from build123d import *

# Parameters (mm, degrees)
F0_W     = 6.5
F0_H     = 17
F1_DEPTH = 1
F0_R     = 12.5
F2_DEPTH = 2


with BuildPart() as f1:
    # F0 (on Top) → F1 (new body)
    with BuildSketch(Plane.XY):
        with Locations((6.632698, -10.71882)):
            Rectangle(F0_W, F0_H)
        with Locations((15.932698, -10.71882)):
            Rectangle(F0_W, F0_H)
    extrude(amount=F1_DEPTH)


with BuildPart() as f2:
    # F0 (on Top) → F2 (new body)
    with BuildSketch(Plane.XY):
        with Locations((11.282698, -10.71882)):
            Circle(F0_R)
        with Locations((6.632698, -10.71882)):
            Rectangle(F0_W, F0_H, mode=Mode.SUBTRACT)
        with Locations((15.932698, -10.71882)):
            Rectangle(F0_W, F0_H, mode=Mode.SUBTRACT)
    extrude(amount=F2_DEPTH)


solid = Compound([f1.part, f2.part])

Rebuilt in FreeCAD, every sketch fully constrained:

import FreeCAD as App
import Part
import Sketcher

V = App.Vector
Q = App.Units.Quantity

doc = App.newDocument("Part")
body = doc.addObject("PartDesign::Body", "Body")
body.AllowCompound = True

# Sketch on XY plane
sketch1 = body.newObject("Sketcher::SketchObject", "Sketch")
sketch1.AttachmentSupport = (doc.getObject("XY_Plane"), [""])
sketch1.MapMode = "FlatFace"
sketch1.addGeometry([
    Part.LineSegment(V(3, -2, 0), V(3, -19, 0)),  # 0
    Part.LineSegment(V(3, -19, 0), V(10, -19, 0)),  # 1
    Part.LineSegment(V(10, -19, 0), V(10, -2, 0)),  # 2
    Part.LineSegment(V(10, -2, 0), V(3, -2, 0)),  # 3
    Part.LineSegment(V(13, -2, 0), V(13, -19, 0)),  # 4
    Part.LineSegment(V(13, -19, 0), V(19, -19, 0)),  # 5
    Part.LineSegment(V(19, -19, 0), V(19, -2, 0)),  # 6
    Part.LineSegment(V(19, -2, 0), V(13, -2, 0)),  # 7
], False)
sketch1.addConstraint([
    Sketcher.Constraint("Coincident", 0, 2, 1, 1),
    Sketcher.Constraint("Coincident", 1, 2, 2, 1),
    Sketcher.Constraint("Coincident", 2, 2, 3, 1),
    Sketcher.Constraint("Coincident", 3, 2, 0, 1),
    Sketcher.Constraint("Coincident", 4, 2, 5, 1),
    Sketcher.Constraint("Coincident", 5, 2, 6, 1),
    Sketcher.Constraint("Coincident", 6, 2, 7, 1),
    Sketcher.Constraint("Coincident", 7, 2, 4, 1),
    Sketcher.Constraint("Vertical", 0),
    Sketcher.Constraint("Horizontal", 1),
    Sketcher.Constraint("Vertical", 2),
    Sketcher.Constraint("Horizontal", 3),
    Sketcher.Constraint("Vertical", 4),
    Sketcher.Constraint("Horizontal", 5),
    Sketcher.Constraint("Vertical", 6),
    Sketcher.Constraint("Horizontal", 7),
    Sketcher.Constraint("Horizontal", 1, 2, 4, 2),
    Sketcher.Constraint("Horizontal", 3, 2, 6, 2),
    Sketcher.Constraint("Equal", 3, 5),
    Sketcher.Constraint("DistanceY", 0, 2, 0, 1, Q("17 mm")),
    Sketcher.Constraint("DistanceX", 1, 1, 1, 2, Q("6.5 mm")),
    Sketcher.Constraint("DistanceX", 1, 2, 4, 2, Q("2.8 mm")),
    Sketcher.Constraint("DistanceX", -1, 1, 0, 2, Q("3.382698 mm")),
    Sketcher.Constraint("DistanceY", 0, 2, -1, 1, Q("19.21882 mm")),
])
pad1 = body.newObject("PartDesign::Pad", "Pad")
pad1.Profile = sketch1
pad1.Length = 1
body2 = doc.addObject("PartDesign::Body", "Body001")

# Sketch on XY plane
sketch2 = body2.newObject("Sketcher::SketchObject", "Sketch001")
sketch2.AttachmentSupport = (doc.getObject("XY_Plane001"), [""])
sketch2.MapMode = "FlatFace"
sketch2.addGeometry([
    Part.Circle(V(11, -11, 0), V(0, 0, 1), 12),  # 0
    Part.LineSegment(V(10, -19, 0), V(3, -19, 0)),  # 1
    Part.LineSegment(V(3, -19, 0), V(3, -2, 0)),  # 2
    Part.LineSegment(V(3, -2, 0), V(10, -2, 0)),  # 3
    Part.LineSegment(V(10, -2, 0), V(10, -19, 0)),  # 4
    Part.LineSegment(V(19, -19, 0), V(13, -19, 0)),  # 5
    Part.LineSegment(V(13, -19, 0), V(13, -2, 0)),  # 6
    Part.LineSegment(V(13, -2, 0), V(19, -2, 0)),  # 7
    Part.LineSegment(V(19, -2, 0), V(19, -19, 0)),  # 8
], False)
sketch2.addConstraint([
    Sketcher.Constraint("Coincident", 1, 2, 2, 1),
    Sketcher.Constraint("Coincident", 2, 2, 3, 1),
    Sketcher.Constraint("Coincident", 3, 2, 4, 1),
    Sketcher.Constraint("Coincident", 4, 2, 1, 1),
    Sketcher.Constraint("Coincident", 5, 2, 6, 1),
    Sketcher.Constraint("Coincident", 6, 2, 7, 1),
    Sketcher.Constraint("Coincident", 7, 2, 8, 1),
    Sketcher.Constraint("Coincident", 8, 2, 5, 1),
    Sketcher.Constraint("Horizontal", 1),
    Sketcher.Constraint("Vertical", 2),
    Sketcher.Constraint("Horizontal", 3),
    Sketcher.Constraint("Vertical", 4),
    Sketcher.Constraint("Horizontal", 5),
    Sketcher.Constraint("Vertical", 6),
    Sketcher.Constraint("Horizontal", 7),
    Sketcher.Constraint("Vertical", 8),
    Sketcher.Constraint("Horizontal", 4, 2, 5, 2),
    Sketcher.Constraint("Horizontal", 3, 2, 6, 2),
    Sketcher.Constraint("Equal", 3, 5),
    Sketcher.Constraint("Diameter", 0, Q("25 mm")),
    Sketcher.Constraint("DistanceY", 2, 1, 2, 2, Q("17 mm")),
    Sketcher.Constraint("DistanceX", 1, 2, 1, 1, Q("6.5 mm")),
    Sketcher.Constraint("DistanceX", 1, 2, 0, 3, Q("7.9 mm")),
    Sketcher.Constraint("DistanceY", 1, 2, 0, 3, Q("8.5 mm")),
    Sketcher.Constraint("DistanceX", 4, 2, 5, 2, Q("2.8 mm")),
    Sketcher.Constraint("DistanceX", -1, 1, 1, 2, Q("3.382698 mm")),
    Sketcher.Constraint("DistanceY", 0, 3, -1, 1, Q("10.71882 mm")),
])
pad2 = body2.newObject("PartDesign::Pad", "Pad001")
pad2.Profile = sketch2
pad2.Length = 2

doc.recompute()
